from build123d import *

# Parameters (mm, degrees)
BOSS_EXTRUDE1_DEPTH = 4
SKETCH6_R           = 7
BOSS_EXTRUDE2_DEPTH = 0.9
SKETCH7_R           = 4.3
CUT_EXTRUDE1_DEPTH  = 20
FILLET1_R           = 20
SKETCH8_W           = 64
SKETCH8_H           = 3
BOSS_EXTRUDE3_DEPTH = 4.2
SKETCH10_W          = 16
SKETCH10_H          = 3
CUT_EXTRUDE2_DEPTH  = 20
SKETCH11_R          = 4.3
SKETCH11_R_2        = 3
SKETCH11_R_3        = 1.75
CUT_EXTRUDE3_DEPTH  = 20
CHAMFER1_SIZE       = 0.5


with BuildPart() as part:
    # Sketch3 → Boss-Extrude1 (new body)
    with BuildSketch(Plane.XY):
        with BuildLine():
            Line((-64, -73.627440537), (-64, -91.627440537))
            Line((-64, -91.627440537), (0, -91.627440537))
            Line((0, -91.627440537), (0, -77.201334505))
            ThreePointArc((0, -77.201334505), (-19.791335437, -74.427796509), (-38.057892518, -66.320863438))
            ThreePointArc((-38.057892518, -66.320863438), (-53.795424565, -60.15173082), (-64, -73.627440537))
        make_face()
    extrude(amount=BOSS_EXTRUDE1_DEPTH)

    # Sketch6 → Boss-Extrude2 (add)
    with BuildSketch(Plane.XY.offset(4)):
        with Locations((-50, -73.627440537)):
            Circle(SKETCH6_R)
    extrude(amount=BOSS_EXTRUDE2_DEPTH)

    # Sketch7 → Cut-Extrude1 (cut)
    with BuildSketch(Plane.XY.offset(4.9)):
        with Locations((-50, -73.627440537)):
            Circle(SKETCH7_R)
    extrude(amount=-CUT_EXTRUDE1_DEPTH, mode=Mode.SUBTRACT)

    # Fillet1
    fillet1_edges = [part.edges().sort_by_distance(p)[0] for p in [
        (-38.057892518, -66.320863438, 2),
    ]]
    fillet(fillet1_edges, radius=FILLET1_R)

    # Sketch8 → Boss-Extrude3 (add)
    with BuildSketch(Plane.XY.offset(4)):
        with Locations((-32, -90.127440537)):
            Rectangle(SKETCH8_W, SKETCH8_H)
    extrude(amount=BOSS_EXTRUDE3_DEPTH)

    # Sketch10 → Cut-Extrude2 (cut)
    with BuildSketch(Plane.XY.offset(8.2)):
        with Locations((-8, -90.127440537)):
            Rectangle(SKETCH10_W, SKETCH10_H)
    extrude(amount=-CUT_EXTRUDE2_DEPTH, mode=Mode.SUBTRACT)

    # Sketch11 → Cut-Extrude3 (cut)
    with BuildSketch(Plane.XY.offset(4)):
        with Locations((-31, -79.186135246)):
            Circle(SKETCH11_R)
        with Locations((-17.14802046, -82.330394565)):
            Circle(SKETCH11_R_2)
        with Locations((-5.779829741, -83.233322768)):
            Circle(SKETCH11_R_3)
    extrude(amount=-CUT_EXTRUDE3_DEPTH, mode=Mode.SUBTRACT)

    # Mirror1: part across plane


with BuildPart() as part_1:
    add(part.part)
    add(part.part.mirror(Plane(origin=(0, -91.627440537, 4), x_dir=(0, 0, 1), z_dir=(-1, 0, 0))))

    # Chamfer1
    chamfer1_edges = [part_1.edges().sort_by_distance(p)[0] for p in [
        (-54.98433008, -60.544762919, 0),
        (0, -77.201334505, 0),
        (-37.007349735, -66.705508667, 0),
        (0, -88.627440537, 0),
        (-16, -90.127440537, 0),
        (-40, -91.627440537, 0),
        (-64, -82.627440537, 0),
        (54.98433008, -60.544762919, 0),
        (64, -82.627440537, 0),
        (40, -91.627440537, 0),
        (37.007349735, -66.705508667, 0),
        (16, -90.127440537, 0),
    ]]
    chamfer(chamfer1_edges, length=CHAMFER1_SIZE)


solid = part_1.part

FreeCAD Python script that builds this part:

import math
import FreeCAD as App
import Part
import Sketcher
from FreeCAD import Vector


def edges_at(feature, points):
    """Names of the edges that pass closest to the given points."""
    edges = feature.Shape.Edges
    near = lambda p: min(range(len(edges)), key=lambda i: edges[i].distToShape(Part.Vertex(*p))[0])
    return sorted({f"Edge{near(p) + 1}" for p in points})

doc = App.newDocument("Part")
body = doc.addObject("PartDesign::Body", "Body")

# Sketch on XY plane
sketch1 = doc.addObject("Sketcher::SketchObject", "Sketch")
body.addObject(sketch1)
sketch1.AttachmentSupport = (doc.XY_Plane, [""])
sketch1.MapMode = "FlatFace"
sketch1.addGeometry(Part.LineSegment(Vector(-64, -74, 0), Vector(-64, -92, 0)), False)
sketch1.addGeometry(Part.LineSegment(Vector(-64, -92, 0), Vector(0, -92, 0)), False)
sketch1.addGeometry(Part.LineSegment(Vector(0, -92, 0), Vector(0, -77, 0)), False)
sketch1.addGeometry(Part.ArcOfCircle(Part.Circle(Vector(0, -5, 0), Vector(0, 0, 1), 72), math.radians(-122), math.radians(-90)), False)
sketch1.addGeometry(Part.ArcOfCircle(Part.Circle(Vector(-50, -74, 0), Vector(0, 0, 1), 14), math.radians(31), math.radians(180)), False)
sketch1.addConstraint(Sketcher.Constraint("Coincident", 0, 2, 1, 1))
sketch1.addConstraint(Sketcher.Constraint("Coincident", 1, 2, 2, 1))
sketch1.addConstraint(Sketcher.Constraint("Coincident", 2, 2, 3, 2))
sketch1.addConstraint(Sketcher.Constraint("Coincident", 3, 1, 4, 1))
sketch1.addConstraint(Sketcher.Constraint("Tangent", 4, 2, 0, 1))
sketch1.addConstraint(Sketcher.Constraint("Vertical", 0))
sketch1.addConstraint(Sketcher.Constraint("Horizontal", 1))
sketch1.addConstraint(Sketcher.Constraint("Vertical", 2))
sketch1.addConstraint(Sketcher.Constraint("PointOnObject", 3, 3, -2))
sketch1.addConstraint(Sketcher.Constraint("PointOnObject", 1, 2, -2))
sketch1.addConstraint(Sketcher.Constraint("Radius", 3, 72.0))
sketch1.addConstraint(Sketcher.Constraint("Radius", 4, 14.0))
sketch1.addConstraint(Sketcher.Constraint("DistanceX", 1, 1, 1, 2, 64.0))
sketch1.addConstraint(Sketcher.Constraint("DistanceY", 0, 2, 0, 1, 18.0))
sketch1.addConstraint(Sketcher.Constraint("DistanceY", 2, 1, 2, 2, 14.426106))
sketch1.addConstraint(Sketcher.Constraint("DistanceY", 4, 3, -1, 1, 73.627441))
pad1 = doc.addObject("PartDesign::Pad", "Pad")
body.addObject(pad1)
pad1.Profile = sketch1
pad1.Length = 4

# Sketch on XY plane
sketch2 = doc.addObject("Sketcher::SketchObject", "Sketch001")
body.addObject(sketch2)
sketch2.AttachmentSupport = (doc.XY_Plane, [""])
sketch2.MapMode = "FlatFace"
sketch2.AttachmentOffset = App.Placement(Vector(0, 0, 4), App.Rotation())
sketch2.addGeometry(Part.Circle(Vector(-50, -74, 0), Vector(0, 0, 1), 7), False)
sketch2.addConstraint(Sketcher.Constraint("Diameter", 0, 14.0))
sketch2.addConstraint(Sketcher.Constraint("DistanceX", 0, 3, -1, 1, 50.0))
sketch2.addConstraint(Sketcher.Constraint("DistanceY", 0, 3, -1, 1, 73.627441))
pad2 = doc.addObject("PartDesign::Pad", "Pad001")
body.addObject(pad2)
pad2.Profile = sketch2
pad2.Length = 0.9

# Sketch on XY plane
sketch3 = doc.addObject("Sketcher::SketchObject", "Sketch002")
body.addObject(sketch3)
sketch3.AttachmentSupport = (doc.XY_Plane, [""])
sketch3.MapMode = "FlatFace"
sketch3.AttachmentOffset = App.Placement(Vector(0, 0, 4.9), App.Rotation())
sketch3.addGeometry(Part.Circle(Vector(-50, -73.6, 0), Vector(0, 0, 1), 4.3), False)
sketch3.addConstraint(Sketcher.Constraint("Diameter", 0, 8.6))
sketch3.addConstraint(Sketcher.Constraint("DistanceX", 0, 3, -1, 1, 50.0))
sketch3.addConstraint(Sketcher.Constraint("DistanceY", 0, 3, -1, 1, 73.627441))
pocket1 = doc.addObject("PartDesign::Pocket", "Pocket")
body.addObject(pocket1)
pocket1.Profile = sketch3
pocket1.Length = 20
doc.recompute()

fillet = doc.addObject("PartDesign::Fillet", "Fillet")
body.addObject(fillet)
fillet.Base = (pocket1, edges_at(pocket1, [(-38.058, -66.321, 2)]))
fillet.Radius = 20

# Sketch on XY plane
sketch4 = doc.addObject("Sketcher::SketchObject", "Sketch003")
body.addObject(sketch4)
sketch4.AttachmentSupport = (doc.XY_Plane, [""])
sketch4.MapMode = "FlatFace"
sketch4.AttachmentOffset = App.Placement(Vector(0, 0, 4), App.Rotation())
sketch4.addGeometry(Part.LineSegment(Vector(-64, -88.6, 0), Vector(-64, -91.6, 0)), False)
sketch4.addGeometry(Part.LineSegment(Vector(-64, -91.6, 0), Vector(0, -91.6, 0)), False)
sketch4.addGeometry(Part.LineSegment(Vector(0, -91.6, 0), Vector(0, -88.6, 0)), False)
sketch4.addGeometry(Part.LineSegment(Vector(0, -88.6, 0), Vector(-64, -88.6, 0)), False)
sketch4.addConstraint(Sketcher.Constraint("Coincident", 0, 2, 1, 1))
sketch4.addConstraint(Sketcher.Constraint("Coincident", 1, 2, 2, 1))
sketch4.addConstraint(Sketcher.Constraint("Coincident", 2, 2, 3, 1))
sketch4.addConstraint(Sketcher.Constraint("Coincident", 3, 2, 0, 1))
sketch4.addConstraint(Sketcher.Constraint("Vertical", 0))
sketch4.addConstraint(Sketcher.Constraint("Horizontal", 1))
sketch4.addConstraint(Sketcher.Constraint("Vertical", 2))
sketch4.addConstraint(Sketcher.Constraint("Horizontal", 3))
sketch4.addConstraint(Sketcher.Constraint("PointOnObject", 1, 2, -2))
sketch4.addConstraint(Sketcher.Constraint("DistanceX", 1, 1, 1, 2, 64.0))
sketch4.addConstraint(Sketcher.Constraint("DistanceY", 0, 2, 0, 1, 3.0))
sketch4.addConstraint(Sketcher.Constraint("DistanceY", 0, 2, -1, 1, 91.627441))
pad3 = doc.addObject("PartDesign::Pad", "Pad002")
body.addObject(pad3)
pad3.Profile = sketch4
pad3.Length = 4.2

# Sketch on XY plane
sketch5 = doc.addObject("Sketcher::SketchObject", "Sketch004")
body.addObject(sketch5)
sketch5.AttachmentSupport = (doc.XY_Plane, [""])
sketch5.MapMode = "FlatFace"
sketch5.AttachmentOffset = App.Placement(Vector(0, 0, 8.2), App.Rotation())
sketch5.addGeometry(Part.LineSegment(Vector(-16, -88.6, 0), Vector(-16, -91.6, 0)), False)
sketch5.addGeometry(Part.LineSegment(Vector(-16, -91.6, 0), Vector(0, -91.6, 0)), False)
sketch5.addGeometry(Part.LineSegment(Vector(0, -91.6, 0), Vector(0, -88.6, 0)), False)
sketch5.addGeometry(Part.LineSegment(Vector(0, -88.6, 0), Vector(-16, -88.6, 0)), False)
sketch5.addConstraint(Sketcher.Constraint("Coincident", 0, 2, 1, 1))
sketch5.addConstraint(Sketcher.Constraint("Coincident", 1, 2, 2, 1))
sketch5.addConstraint(Sketcher.Constraint("Coincident", 2, 2, 3, 1))
sketch5.addConstraint(Sketcher.Constraint("Coincident", 3, 2, 0, 1))
sketch5.addConstraint(Sketcher.Constraint("Vertical", 0))
sketch5.addConstraint(Sketcher.Constraint("Horizontal", 1))
sketch5.addConstraint(Sketcher.Constraint("Vertical", 2))
sketch5.addConstraint(Sketcher.Constraint("Horizontal", 3))
sketch5.addConstraint(Sketcher.Constraint("PointOnObject", 1, 2, -2))
sketch5.addConstraint(Sketcher.Constraint("DistanceX", 1, 1, 1, 2, 16.0))
sketch5.addConstraint(Sketcher.Constraint("DistanceY", 0, 2, 0, 1, 3.0))
sketch5.addConstraint(Sketcher.Constraint("DistanceY", 0, 2, -1, 1, 91.627441))
pocket2 = doc.addObject("PartDesign::Pocket", "Pocket001")
body.addObject(pocket2)
pocket2.Profile = sketch5
pocket2.Length = 20

# Sketch on XY plane
sketch6 = doc.addObject("Sketcher::SketchObject", "Sketch005")
body.addObject(sketch6)
sketch6.AttachmentSupport = (doc.XY_Plane, [""])
sketch6.MapMode = "FlatFace"
sketch6.AttachmentOffset = App.Placement(Vector(0, 0, 4), App.Rotation())
sketch6.addGeometry(Part.Circle(Vector(-31, -79.2, 0), Vector(0, 0, 1), 4.3), False)
sketch6.addGeometry(Part.Circle(Vector(-17.1, -82.3, 0), Vector(0, 0, 1), 3), False)
sketch6.addGeometry(Part.Circle(Vector(-5.8, -83.2, 0), Vector(0, 0, 1), 1.8), False)
sketch6.addConstraint(Sketcher.Constraint("Diameter", 1, 6.0))
sketch6.addConstraint(Sketcher.Constraint("Diameter", 0, 8.6))
sketch6.addConstraint(Sketcher.Constraint("Diameter", 2, 3.5))
sketch6.addConstraint(Sketcher.Constraint("DistanceX", 0, 3, -1, 1, 31.0))
sketch6.addConstraint(Sketcher.Constraint("DistanceX", 1, 3, -1, 1, 17.14802))
sketch6.addConstraint(Sketcher.Constraint("DistanceX", 2, 3, -1, 1, 5.77983))
sketch6.addConstraint(Sketcher.Constraint("DistanceY", 1, 3, 0, 3, 3.144259))
sketch6.addConstraint(Sketcher.Constraint("DistanceY", 2, 3, 1, 3, 0.902928))
sketch6.addConstraint(Sketcher.Constraint("DistanceY", 0, 3, -1, 1, 79.186135))
pocket3 = doc.addObject("PartDesign::Pocket", "Pocket002")
body.addObject(pocket3)
pocket3.Profile = sketch6
pocket3.Length = 20
body2 = doc.addObject("PartDesign::Body", "Body001")
doc.recompute()

body2.BaseFeature = body
doc.recompute()

mirroring = doc.addObject("Part::Mirroring", "Mirroring")
mirroring.Source = body
mirroring.Base = Vector(0, -91.627441, 4)
mirroring.Normal = Vector(-1, 0, 0)
body3 = doc.addObject("PartDesign::Body", "Body002")
body3.BaseFeature = mirroring
boolean = doc.addObject("PartDesign::Boolean", "Boolean")
body2.addObject(boolean)
boolean.Type = "Fuse"
boolean.addObjects([body3])
doc.recompute()

chamfer = doc.addObject("PartDesign::Chamfer", "Chamfer")
body2.addObject(chamfer)
chamfer.Base = (boolean, edges_at(boolean, [
    (-54.984, -60.545, 0),
    (-17.576, -75.023, 0),
    (-37.007, -66.706, 0),
    (0, -88.627, 0),
    (-16, -90.127, 0),
    (-40, -91.627, 0),
    (-64, -82.627, 0),
    (54.984, -60.545, 0),
    (64, -82.627, 0),
    (40, -91.627, 0),
    (37.007, -66.706, 0),
    (16, -90.127, 0),
]))
chamfer.Size = 0.5
mirroring.Visibility = False

doc.recompute()
